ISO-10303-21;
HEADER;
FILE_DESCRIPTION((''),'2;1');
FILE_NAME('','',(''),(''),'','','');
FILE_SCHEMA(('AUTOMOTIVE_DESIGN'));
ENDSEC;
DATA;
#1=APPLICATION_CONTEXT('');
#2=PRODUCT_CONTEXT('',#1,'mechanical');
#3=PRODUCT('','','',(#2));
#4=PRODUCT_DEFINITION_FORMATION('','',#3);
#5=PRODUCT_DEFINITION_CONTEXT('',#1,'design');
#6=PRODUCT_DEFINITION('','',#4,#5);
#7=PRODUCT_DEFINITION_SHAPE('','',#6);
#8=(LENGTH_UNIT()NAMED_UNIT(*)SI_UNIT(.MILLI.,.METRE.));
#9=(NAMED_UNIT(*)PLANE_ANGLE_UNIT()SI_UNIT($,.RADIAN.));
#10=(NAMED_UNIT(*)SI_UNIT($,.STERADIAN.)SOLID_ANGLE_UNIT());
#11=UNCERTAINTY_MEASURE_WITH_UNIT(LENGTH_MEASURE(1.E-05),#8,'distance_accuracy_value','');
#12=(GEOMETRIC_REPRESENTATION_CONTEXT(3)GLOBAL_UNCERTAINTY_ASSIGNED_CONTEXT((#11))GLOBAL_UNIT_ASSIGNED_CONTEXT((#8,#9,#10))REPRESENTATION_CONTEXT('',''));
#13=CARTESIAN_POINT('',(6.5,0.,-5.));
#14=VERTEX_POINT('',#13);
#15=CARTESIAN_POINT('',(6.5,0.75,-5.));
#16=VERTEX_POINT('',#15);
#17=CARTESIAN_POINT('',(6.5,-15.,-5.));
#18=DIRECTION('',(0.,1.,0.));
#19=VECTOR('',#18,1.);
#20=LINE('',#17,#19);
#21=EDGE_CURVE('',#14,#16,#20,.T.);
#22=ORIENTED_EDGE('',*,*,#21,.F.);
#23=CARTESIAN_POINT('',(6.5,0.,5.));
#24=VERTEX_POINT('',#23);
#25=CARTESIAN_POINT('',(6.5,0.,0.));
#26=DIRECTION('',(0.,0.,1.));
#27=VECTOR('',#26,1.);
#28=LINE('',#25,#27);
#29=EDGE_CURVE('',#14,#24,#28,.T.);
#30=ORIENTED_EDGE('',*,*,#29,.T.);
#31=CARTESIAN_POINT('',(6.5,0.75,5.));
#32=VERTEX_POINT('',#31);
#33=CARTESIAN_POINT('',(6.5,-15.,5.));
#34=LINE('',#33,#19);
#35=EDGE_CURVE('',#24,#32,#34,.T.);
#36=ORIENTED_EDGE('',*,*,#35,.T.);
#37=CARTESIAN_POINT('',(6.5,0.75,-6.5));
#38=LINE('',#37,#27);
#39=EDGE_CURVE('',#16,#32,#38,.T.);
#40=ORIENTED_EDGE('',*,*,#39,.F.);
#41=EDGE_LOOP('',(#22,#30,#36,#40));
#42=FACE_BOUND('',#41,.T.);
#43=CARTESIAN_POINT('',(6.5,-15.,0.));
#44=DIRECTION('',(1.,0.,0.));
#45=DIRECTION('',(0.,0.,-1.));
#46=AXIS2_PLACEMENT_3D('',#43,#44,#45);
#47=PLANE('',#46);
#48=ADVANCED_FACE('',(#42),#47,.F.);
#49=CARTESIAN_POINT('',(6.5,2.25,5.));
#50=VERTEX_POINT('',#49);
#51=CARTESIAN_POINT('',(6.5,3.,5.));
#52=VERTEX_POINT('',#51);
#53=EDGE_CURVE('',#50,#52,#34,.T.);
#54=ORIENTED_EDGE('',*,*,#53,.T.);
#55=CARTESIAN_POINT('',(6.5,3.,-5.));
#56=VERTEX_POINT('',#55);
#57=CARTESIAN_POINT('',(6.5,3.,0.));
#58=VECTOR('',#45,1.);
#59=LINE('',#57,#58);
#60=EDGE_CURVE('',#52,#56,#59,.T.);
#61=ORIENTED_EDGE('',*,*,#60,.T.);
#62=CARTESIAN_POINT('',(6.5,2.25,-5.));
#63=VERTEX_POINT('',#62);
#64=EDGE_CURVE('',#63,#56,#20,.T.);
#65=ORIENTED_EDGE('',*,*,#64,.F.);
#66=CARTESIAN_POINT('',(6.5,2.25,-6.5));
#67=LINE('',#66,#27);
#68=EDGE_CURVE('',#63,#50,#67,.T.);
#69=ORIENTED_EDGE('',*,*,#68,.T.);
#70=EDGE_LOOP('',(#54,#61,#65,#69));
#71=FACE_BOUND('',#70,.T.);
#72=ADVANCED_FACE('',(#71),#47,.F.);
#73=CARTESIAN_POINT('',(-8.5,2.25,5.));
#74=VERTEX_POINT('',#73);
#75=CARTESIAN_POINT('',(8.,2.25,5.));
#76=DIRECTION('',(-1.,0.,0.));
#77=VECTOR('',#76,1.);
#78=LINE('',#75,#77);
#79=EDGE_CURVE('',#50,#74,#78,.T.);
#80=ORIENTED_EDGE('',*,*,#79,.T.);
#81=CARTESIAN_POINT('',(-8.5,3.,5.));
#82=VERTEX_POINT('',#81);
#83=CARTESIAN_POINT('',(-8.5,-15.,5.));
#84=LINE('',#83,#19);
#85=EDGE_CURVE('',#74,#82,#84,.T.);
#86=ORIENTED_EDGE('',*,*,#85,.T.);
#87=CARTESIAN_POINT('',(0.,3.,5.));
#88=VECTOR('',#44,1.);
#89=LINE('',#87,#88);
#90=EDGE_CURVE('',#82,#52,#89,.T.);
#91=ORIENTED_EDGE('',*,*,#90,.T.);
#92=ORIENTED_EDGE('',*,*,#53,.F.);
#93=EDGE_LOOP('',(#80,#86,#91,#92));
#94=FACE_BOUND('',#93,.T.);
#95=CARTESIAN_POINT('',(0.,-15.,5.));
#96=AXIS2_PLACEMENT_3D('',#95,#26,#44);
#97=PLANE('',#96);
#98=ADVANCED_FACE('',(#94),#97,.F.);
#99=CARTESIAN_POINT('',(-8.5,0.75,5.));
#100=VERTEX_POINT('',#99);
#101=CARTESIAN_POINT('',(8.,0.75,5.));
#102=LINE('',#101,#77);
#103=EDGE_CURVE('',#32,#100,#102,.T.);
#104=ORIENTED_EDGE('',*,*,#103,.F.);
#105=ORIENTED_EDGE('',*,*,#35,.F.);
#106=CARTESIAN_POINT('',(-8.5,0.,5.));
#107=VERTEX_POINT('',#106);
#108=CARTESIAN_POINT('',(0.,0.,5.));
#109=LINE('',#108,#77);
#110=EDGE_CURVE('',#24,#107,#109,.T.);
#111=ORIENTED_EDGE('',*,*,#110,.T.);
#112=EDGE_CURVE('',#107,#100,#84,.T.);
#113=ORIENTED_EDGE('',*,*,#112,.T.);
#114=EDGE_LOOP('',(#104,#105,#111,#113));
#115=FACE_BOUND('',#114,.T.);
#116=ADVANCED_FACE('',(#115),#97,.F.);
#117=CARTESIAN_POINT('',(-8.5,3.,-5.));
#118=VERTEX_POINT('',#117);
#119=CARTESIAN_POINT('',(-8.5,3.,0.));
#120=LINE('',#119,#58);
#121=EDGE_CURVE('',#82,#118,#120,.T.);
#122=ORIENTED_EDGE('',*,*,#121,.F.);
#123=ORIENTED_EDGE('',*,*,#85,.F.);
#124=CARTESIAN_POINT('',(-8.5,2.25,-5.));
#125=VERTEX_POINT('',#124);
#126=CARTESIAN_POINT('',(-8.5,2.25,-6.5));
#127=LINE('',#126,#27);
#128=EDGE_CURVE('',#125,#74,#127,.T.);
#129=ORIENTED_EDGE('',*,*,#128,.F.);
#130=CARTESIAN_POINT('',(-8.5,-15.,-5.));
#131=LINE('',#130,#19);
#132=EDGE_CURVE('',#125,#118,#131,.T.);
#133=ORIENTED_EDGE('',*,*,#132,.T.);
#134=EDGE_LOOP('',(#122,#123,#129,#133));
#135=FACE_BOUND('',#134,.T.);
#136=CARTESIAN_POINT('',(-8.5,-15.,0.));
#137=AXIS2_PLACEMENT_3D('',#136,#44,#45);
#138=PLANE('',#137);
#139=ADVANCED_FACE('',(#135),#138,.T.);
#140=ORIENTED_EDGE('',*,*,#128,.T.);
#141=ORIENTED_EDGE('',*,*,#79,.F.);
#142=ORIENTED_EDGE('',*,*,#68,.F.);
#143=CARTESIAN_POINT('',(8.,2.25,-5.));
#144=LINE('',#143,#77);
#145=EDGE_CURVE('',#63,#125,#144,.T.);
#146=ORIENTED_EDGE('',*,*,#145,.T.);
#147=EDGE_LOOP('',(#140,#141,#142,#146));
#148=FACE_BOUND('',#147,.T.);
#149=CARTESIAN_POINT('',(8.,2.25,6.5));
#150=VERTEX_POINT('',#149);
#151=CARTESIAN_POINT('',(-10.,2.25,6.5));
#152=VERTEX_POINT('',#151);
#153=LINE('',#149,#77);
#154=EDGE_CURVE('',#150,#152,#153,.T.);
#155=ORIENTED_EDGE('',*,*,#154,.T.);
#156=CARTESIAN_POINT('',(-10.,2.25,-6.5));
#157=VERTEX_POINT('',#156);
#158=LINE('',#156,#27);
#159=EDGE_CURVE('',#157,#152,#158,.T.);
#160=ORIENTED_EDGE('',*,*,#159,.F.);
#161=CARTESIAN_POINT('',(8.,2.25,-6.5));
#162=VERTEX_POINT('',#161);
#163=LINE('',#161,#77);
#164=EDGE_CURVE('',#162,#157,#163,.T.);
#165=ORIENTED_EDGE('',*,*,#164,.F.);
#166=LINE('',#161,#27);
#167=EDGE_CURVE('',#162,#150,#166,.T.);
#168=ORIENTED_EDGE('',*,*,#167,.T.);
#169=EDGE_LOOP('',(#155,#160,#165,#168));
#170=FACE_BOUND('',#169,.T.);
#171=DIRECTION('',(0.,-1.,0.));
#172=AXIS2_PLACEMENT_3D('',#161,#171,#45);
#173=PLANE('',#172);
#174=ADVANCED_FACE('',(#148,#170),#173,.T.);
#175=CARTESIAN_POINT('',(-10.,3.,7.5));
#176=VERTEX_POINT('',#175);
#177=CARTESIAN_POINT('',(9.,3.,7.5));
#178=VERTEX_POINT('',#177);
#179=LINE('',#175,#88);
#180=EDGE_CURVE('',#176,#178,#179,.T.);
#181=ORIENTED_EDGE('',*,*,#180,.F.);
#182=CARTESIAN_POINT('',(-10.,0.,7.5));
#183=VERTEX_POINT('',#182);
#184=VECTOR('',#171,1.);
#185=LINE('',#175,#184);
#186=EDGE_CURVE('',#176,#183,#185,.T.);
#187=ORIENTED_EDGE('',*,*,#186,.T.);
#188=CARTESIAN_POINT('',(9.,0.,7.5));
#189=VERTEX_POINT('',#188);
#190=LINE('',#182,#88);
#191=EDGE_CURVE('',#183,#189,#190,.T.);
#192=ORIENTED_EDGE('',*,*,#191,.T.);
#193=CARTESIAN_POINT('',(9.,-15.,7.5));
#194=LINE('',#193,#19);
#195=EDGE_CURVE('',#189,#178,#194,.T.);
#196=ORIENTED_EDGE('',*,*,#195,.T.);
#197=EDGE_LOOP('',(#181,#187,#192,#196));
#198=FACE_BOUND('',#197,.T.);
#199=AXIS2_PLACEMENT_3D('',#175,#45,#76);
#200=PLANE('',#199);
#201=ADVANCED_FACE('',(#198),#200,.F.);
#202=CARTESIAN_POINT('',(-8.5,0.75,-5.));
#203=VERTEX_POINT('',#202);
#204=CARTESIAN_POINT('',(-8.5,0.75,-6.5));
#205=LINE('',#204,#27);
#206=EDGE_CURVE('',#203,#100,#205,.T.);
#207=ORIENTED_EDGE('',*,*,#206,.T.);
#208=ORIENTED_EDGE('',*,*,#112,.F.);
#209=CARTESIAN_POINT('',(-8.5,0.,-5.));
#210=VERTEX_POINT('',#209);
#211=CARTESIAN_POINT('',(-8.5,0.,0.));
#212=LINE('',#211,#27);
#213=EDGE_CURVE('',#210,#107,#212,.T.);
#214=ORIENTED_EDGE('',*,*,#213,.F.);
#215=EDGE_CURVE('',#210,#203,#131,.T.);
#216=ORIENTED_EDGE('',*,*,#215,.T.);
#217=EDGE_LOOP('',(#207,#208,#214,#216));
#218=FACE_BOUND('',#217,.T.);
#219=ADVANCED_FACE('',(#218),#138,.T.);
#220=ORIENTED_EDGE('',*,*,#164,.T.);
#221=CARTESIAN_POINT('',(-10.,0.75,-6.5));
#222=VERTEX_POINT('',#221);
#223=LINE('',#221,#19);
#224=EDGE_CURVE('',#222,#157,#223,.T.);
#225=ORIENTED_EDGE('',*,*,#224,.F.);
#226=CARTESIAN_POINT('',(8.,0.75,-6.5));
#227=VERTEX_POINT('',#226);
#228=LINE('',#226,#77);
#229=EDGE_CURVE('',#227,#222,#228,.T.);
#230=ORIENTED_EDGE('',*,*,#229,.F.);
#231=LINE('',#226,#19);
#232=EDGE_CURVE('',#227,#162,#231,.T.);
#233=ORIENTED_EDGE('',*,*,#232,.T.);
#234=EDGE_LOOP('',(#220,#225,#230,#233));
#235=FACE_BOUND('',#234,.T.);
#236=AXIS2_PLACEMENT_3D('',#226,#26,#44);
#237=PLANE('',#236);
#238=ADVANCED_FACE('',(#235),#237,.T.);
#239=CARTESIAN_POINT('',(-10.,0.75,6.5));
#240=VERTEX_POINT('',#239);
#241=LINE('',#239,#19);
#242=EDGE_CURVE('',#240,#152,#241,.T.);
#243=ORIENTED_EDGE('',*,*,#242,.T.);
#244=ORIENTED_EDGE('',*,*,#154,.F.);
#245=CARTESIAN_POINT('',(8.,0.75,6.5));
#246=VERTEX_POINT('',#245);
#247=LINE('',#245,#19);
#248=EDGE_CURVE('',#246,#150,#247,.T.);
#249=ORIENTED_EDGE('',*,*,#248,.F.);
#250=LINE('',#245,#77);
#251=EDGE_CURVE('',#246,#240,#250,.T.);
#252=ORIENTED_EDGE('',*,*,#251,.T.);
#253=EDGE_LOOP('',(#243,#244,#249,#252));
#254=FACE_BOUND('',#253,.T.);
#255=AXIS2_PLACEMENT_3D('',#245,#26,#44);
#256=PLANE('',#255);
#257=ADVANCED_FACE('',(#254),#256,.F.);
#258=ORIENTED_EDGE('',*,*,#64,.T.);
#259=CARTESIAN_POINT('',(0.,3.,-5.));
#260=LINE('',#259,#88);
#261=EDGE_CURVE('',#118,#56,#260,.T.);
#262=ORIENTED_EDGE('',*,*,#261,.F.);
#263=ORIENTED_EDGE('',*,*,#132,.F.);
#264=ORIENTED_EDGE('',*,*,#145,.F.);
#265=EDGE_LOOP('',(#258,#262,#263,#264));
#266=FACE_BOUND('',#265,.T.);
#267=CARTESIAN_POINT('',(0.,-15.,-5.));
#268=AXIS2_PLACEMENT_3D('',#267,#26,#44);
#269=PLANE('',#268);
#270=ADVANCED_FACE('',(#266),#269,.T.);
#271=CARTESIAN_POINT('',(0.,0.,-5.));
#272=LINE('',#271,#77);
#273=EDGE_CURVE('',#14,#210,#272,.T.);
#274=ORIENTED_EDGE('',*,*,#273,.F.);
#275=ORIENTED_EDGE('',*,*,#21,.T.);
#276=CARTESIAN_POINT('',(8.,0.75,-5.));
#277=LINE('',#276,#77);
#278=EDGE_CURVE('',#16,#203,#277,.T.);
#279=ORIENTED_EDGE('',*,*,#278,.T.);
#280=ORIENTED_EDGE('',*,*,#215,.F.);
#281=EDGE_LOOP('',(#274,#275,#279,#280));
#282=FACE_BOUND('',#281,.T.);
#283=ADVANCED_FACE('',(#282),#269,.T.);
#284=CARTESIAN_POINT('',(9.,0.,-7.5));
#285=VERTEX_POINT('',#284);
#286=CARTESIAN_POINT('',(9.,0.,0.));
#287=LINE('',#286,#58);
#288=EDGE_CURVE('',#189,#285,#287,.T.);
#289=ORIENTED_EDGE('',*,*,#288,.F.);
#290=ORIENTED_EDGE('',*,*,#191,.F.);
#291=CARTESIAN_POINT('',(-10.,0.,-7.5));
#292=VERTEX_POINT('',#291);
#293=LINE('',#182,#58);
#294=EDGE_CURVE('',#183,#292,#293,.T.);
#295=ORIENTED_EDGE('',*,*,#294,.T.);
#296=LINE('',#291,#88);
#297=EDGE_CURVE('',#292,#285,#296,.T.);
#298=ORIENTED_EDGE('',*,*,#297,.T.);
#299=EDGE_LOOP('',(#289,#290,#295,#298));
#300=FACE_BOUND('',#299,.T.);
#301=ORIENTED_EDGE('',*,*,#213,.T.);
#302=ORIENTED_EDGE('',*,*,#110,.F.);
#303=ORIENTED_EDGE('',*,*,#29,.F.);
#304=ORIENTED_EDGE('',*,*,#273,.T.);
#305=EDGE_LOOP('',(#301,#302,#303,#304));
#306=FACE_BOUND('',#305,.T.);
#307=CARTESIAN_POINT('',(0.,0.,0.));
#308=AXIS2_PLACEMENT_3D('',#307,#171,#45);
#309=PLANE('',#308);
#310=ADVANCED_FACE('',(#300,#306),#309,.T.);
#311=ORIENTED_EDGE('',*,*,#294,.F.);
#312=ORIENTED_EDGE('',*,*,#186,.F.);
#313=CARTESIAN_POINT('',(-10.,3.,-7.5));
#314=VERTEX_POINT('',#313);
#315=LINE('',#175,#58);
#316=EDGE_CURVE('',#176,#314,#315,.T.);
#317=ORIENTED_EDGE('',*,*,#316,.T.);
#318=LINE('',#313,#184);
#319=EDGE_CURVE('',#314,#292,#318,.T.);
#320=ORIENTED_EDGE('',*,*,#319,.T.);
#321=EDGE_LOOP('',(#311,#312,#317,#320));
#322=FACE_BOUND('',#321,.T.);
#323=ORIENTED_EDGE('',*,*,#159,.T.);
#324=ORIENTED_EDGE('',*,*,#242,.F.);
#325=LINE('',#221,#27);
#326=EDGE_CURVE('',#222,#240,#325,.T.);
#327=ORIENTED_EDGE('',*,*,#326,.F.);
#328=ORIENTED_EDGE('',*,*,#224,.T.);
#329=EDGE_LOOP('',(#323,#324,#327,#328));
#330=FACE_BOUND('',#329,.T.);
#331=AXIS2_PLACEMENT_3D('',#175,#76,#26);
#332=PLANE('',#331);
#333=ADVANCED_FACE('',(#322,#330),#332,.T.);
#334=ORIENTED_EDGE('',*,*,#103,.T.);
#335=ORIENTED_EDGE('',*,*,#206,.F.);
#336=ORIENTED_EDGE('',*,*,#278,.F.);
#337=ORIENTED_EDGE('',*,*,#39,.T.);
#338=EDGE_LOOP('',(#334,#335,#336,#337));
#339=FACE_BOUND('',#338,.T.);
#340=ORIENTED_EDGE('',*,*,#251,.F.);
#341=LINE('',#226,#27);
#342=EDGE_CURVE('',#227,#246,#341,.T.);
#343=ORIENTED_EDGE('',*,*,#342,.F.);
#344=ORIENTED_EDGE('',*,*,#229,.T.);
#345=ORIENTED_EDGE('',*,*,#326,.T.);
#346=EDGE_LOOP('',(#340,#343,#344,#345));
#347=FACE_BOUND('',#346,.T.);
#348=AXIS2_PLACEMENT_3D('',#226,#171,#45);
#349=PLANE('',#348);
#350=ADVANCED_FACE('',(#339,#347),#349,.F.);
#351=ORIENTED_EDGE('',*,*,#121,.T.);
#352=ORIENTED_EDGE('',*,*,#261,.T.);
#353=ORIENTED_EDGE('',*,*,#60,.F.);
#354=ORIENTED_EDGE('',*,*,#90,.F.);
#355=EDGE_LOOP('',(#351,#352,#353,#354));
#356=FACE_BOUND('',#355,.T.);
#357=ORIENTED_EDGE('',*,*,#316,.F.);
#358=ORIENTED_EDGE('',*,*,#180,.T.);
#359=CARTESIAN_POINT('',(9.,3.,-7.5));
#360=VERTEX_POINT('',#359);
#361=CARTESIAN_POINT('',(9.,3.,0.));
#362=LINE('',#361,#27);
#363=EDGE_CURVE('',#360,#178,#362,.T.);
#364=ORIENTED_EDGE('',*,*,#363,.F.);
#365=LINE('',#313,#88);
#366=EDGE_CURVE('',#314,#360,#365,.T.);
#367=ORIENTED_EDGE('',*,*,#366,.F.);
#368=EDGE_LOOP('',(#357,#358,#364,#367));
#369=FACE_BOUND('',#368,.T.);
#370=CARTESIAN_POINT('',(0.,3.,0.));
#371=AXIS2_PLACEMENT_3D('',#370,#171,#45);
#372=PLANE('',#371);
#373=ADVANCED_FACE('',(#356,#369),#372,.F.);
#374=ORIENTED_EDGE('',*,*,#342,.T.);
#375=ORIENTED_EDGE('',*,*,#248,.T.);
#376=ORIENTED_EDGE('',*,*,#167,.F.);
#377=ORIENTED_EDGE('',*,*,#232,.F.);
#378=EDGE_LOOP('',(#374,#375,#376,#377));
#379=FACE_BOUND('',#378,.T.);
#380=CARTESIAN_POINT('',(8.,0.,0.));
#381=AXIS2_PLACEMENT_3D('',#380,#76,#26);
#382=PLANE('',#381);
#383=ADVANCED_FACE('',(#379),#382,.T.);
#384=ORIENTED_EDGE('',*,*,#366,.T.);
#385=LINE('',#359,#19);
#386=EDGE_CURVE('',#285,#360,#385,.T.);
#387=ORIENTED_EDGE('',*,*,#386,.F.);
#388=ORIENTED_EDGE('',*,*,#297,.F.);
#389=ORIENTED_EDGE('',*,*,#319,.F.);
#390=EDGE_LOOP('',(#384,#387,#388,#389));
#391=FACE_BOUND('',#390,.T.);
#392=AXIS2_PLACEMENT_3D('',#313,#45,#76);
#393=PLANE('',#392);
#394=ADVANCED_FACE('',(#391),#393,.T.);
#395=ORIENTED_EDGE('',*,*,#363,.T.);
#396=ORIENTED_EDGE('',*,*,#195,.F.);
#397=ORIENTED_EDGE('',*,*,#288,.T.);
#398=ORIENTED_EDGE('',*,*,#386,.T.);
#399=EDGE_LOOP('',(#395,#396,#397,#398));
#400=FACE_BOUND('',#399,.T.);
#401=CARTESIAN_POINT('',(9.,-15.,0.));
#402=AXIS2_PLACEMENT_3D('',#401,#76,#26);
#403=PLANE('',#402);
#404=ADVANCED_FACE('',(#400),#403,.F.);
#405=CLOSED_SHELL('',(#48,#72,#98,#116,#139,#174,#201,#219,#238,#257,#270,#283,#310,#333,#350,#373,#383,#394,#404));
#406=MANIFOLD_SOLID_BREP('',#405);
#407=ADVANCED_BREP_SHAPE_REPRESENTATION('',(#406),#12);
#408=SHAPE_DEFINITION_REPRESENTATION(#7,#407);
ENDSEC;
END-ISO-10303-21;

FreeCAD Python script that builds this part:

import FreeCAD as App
import Part
import Sketcher

doc = App.newDocument("Part")
params = doc.addObject("Spreadsheet::Sheet", "Params")
for row, (alias, value) in enumerate([
    ("sketch1_width", "20 mm"),
    ("sketch1_height", "15 mm"),
    ("pad1_length", "3 mm"),
    ("sketch2_height", "13 mm"),
    ("sketch2_width", "1.5 mm"),
    ("pocket1_length", "18 mm"),
    ("sketch3_width", "15 mm"),
    ("sketch3_height", "10 mm"),
    ("pocket2_length", "18 mm"),
    ("sketch4_width", "1 mm"),
    ("sketch4_height", "15 mm"),
    ("pocket3_length", "18 mm"),
], start=1):
    params.set(f"A{row}", alias)
    params.set(f"B{row}", "=" + value)
    params.setAlias(f"B{row}", alias)

body = doc.addObject("PartDesign::Body", "Body")

sketch1 = doc.addObject("Sketcher::SketchObject", "Sketch")
body.addObject(sketch1)
sketch1.AttachmentSupport = (doc.XZ_Plane, [""])
sketch1.MapMode = "FlatFace"
sketch1.addGeometry([
    Part.LineSegment(App.Vector(-10, -8, 0), App.Vector(-10, 8, 0)),
    Part.LineSegment(App.Vector(-10, 8, 0), App.Vector(10, 8, 0)),
    Part.LineSegment(App.Vector(10, 8, 0), App.Vector(10, -8, 0)),
    Part.LineSegment(App.Vector(10, -8, 0), App.Vector(-10, -8, 0)),
], False)
sketch1.addConstraint([
    Sketcher.Constraint("Coincident", 0, 2, 1, 1),
    Sketcher.Constraint("Coincident", 1, 2, 2, 1),
    Sketcher.Constraint("Coincident", 2, 2, 3, 1),
    Sketcher.Constraint("Coincident", 3, 2, 0, 1),
    Sketcher.Constraint("Vertical", 0),
    Sketcher.Constraint("Horizontal", 1),
    Sketcher.Constraint("Vertical", 2),
    Sketcher.Constraint("Horizontal", 3),
    Sketcher.Constraint("Symmetric", 0, 2, 2, 2, -1, 1),
    Sketcher.Constraint("DistanceX", 1, 1, 1, 2, 20.0),
    Sketcher.Constraint("DistanceY", 0, 1, 0, 2, 15.0),
])
sketch1.setExpression("Constraints[9]", "Params.sketch1_width")
sketch1.setExpression("Constraints[10]", "Params.sketch1_height")
pad1 = doc.addObject("PartDesign::Pad", "Pad")
body.addObject(pad1)
pad1.Profile = sketch1
pad1.setExpression("Length", "Params.pad1_length")
pad1.Reversed = True

sketch2 = doc.addObject("Sketcher::SketchObject", "Sketch001")
body.addObject(sketch2)
sketch2.AttachmentSupport = (doc.YZ_Plane, [""])
sketch2.MapMode = "FlatFace"
sketch2.AttachmentOffset = App.Placement(App.Vector(0, 0, -10), App.Rotation())
sketch2.addGeometry([
    Part.LineSegment(App.Vector(2.2, -6.5, 0), App.Vector(0.8, -6.5, 0)),
    Part.LineSegment(App.Vector(0.8, -6.5, 0), App.Vector(0.8, 6.5, 0)),
    Part.LineSegment(App.Vector(0.8, 6.5, 0), App.Vector(2.2, 6.5, 0)),
    Part.LineSegment(App.Vector(2.2, 6.5, 0), App.Vector(2.2, -6.5, 0)),
], False)
sketch2.addConstraint([
    Sketcher.Constraint("Coincident", 0, 2, 1, 1),
    Sketcher.Constraint("Coincident", 1, 2, 2, 1),
    Sketcher.Constraint("Coincident", 2, 2, 3, 1),
    Sketcher.Constraint("Coincident", 3, 2, 0, 1),
    Sketcher.Constraint("Horizontal", 0),
    Sketcher.Constraint("Vertical", 1),
    Sketcher.Constraint("Horizontal", 2),
    Sketcher.Constraint("Vertical", 3),
    Sketcher.Constraint("DistanceY", 1, 1, 1, 2, 13.0),
    Sketcher.Constraint("DistanceX", 0, 2, 0, 1, 1.5),
    Sketcher.Constraint("DistanceY", 0, 2, -1, 1, 6.5),
    Sketcher.Constraint("DistanceX", -1, 1, 0, 2, 0.75),
])
sketch2.setExpression("Constraints[8]", "Params.sketch2_height")
sketch2.setExpression("Constraints[9]", "Params.sketch2_width")
pocket1 = doc.addObject("PartDesign::Pocket", "Pocket")
body.addObject(pocket1)
pocket1.Profile = sketch2
pocket1.setExpression("Length", "Params.pocket1_length")
pocket1.Reversed = True

sketch3 = doc.addObject("Sketcher::SketchObject", "Sketch002")
body.addObject(sketch3)
sketch3.AttachmentSupport = (doc.XZ_Plane, [""])
sketch3.MapMode = "FlatFace"
sketch3.AttachmentOffset = App.Placement(App.Vector(0, 0, -3), App.Rotation())
sketch3.addGeometry([
    Part.LineSegment(App.Vector(-8, -5, 0), App.Vector(-8, 5, 0)),
    Part.LineSegment(App.Vector(-8, 5, 0), App.Vector(6, 5, 0)),
    Part.LineSegment(App.Vector(6, 5, 0), App.Vector(6, -5, 0)),
    Part.LineSegment(App.Vector(6, -5, 0), App.Vector(-8, -5, 0)),
], False)
sketch3.addConstraint([
    Sketcher.Constraint("Coincident", 0, 2, 1, 1),
    Sketcher.Constraint("Coincident", 1, 2, 2, 1),
    Sketcher.Constraint("Coincident", 2, 2, 3, 1),
    Sketcher.Constraint("Coincident", 3, 2, 0, 1),
    Sketcher.Constraint("Vertical", 0),
    Sketcher.Constraint("Horizontal", 1),
    Sketcher.Constraint("Vertical", 2),
    Sketcher.Constraint("Horizontal", 3),
    Sketcher.Constraint("DistanceX", 1, 1, 1, 2, 15.0),
    Sketcher.Constraint("DistanceY", 0, 1, 0, 2, 10.0),
    Sketcher.Constraint("DistanceY", -1, 1, 0, 2, 5.0),
    Sketcher.Constraint("DistanceX", 0, 2, -1, 1, 8.5),
])
sketch3.setExpression("Constraints[8]", "Params.sketch3_width")
sketch3.setExpression("Constraints[9]", "Params.sketch3_height")
pocket2 = doc.addObject("PartDesign::Pocket", "Pocket001")
body.addObject(pocket2)
pocket2.Profile = sketch3
pocket2.setExpression("Length", "Params.pocket2_length")
pocket2.Reversed = True

sketch4 = doc.addObject("Sketcher::SketchObject", "Sketch003")
body.addObject(sketch4)
sketch4.AttachmentSupport = (doc.XZ_Plane, [""])
sketch4.MapMode = "FlatFace"
sketch4.AttachmentOffset = App.Placement(App.Vector(0, 0, -3), App.Rotation())
sketch4.addGeometry([
    Part.LineSegment(App.Vector(9, -7.5, 0), App.Vector(9, 7.5, 0)),
    Part.LineSegment(App.Vector(9, 7.5, 0), App.Vector(10, 7.5, 0)),
    Part.LineSegment(App.Vector(10, 7.5, 0), App.Vector(10, -7.5, 0)),
    Part.LineSegment(App.Vector(10, -7.5, 0), App.Vector(9, -7.5, 0)),
], False)
sketch4.addConstraint([
    Sketcher.Constraint("Coincident", 0, 2, 1, 1),
    Sketcher.Constraint("Coincident", 1, 2, 2, 1),
    Sketcher.Constraint("Coincident", 2, 2, 3, 1),
    Sketcher.Constraint("Coincident", 3, 2, 0, 1),
    Sketcher.Constraint("Vertical", 0),
    Sketcher.Constraint("Horizontal", 1),
    Sketcher.Constraint("Vertical", 2),
    Sketcher.Constraint("Horizontal", 3),
    Sketcher.Constraint("DistanceX", 1, 1, 1, 2, 1.0),
    Sketcher.Constraint("DistanceY", 0, 1, 0, 2, 15.0),
    Sketcher.Constraint("DistanceX", -1, 1, 0, 2, 9.0),
    Sketcher.Constraint("DistanceY", -1, 1, 0, 2, 7.5),
])
sketch4.setExpression("Constraints[8]", "Params.sketch4_width")
sketch4.setExpression("Constraints[9]", "Params.sketch4_height")
pocket3 = doc.addObject("PartDesign::Pocket", "Pocket002")
body.addObject(pocket3)
pocket3.Profile = sketch4
pocket3.setExpression("Length", "Params.pocket3_length")
pocket3.Reversed = True

doc.recompute()
